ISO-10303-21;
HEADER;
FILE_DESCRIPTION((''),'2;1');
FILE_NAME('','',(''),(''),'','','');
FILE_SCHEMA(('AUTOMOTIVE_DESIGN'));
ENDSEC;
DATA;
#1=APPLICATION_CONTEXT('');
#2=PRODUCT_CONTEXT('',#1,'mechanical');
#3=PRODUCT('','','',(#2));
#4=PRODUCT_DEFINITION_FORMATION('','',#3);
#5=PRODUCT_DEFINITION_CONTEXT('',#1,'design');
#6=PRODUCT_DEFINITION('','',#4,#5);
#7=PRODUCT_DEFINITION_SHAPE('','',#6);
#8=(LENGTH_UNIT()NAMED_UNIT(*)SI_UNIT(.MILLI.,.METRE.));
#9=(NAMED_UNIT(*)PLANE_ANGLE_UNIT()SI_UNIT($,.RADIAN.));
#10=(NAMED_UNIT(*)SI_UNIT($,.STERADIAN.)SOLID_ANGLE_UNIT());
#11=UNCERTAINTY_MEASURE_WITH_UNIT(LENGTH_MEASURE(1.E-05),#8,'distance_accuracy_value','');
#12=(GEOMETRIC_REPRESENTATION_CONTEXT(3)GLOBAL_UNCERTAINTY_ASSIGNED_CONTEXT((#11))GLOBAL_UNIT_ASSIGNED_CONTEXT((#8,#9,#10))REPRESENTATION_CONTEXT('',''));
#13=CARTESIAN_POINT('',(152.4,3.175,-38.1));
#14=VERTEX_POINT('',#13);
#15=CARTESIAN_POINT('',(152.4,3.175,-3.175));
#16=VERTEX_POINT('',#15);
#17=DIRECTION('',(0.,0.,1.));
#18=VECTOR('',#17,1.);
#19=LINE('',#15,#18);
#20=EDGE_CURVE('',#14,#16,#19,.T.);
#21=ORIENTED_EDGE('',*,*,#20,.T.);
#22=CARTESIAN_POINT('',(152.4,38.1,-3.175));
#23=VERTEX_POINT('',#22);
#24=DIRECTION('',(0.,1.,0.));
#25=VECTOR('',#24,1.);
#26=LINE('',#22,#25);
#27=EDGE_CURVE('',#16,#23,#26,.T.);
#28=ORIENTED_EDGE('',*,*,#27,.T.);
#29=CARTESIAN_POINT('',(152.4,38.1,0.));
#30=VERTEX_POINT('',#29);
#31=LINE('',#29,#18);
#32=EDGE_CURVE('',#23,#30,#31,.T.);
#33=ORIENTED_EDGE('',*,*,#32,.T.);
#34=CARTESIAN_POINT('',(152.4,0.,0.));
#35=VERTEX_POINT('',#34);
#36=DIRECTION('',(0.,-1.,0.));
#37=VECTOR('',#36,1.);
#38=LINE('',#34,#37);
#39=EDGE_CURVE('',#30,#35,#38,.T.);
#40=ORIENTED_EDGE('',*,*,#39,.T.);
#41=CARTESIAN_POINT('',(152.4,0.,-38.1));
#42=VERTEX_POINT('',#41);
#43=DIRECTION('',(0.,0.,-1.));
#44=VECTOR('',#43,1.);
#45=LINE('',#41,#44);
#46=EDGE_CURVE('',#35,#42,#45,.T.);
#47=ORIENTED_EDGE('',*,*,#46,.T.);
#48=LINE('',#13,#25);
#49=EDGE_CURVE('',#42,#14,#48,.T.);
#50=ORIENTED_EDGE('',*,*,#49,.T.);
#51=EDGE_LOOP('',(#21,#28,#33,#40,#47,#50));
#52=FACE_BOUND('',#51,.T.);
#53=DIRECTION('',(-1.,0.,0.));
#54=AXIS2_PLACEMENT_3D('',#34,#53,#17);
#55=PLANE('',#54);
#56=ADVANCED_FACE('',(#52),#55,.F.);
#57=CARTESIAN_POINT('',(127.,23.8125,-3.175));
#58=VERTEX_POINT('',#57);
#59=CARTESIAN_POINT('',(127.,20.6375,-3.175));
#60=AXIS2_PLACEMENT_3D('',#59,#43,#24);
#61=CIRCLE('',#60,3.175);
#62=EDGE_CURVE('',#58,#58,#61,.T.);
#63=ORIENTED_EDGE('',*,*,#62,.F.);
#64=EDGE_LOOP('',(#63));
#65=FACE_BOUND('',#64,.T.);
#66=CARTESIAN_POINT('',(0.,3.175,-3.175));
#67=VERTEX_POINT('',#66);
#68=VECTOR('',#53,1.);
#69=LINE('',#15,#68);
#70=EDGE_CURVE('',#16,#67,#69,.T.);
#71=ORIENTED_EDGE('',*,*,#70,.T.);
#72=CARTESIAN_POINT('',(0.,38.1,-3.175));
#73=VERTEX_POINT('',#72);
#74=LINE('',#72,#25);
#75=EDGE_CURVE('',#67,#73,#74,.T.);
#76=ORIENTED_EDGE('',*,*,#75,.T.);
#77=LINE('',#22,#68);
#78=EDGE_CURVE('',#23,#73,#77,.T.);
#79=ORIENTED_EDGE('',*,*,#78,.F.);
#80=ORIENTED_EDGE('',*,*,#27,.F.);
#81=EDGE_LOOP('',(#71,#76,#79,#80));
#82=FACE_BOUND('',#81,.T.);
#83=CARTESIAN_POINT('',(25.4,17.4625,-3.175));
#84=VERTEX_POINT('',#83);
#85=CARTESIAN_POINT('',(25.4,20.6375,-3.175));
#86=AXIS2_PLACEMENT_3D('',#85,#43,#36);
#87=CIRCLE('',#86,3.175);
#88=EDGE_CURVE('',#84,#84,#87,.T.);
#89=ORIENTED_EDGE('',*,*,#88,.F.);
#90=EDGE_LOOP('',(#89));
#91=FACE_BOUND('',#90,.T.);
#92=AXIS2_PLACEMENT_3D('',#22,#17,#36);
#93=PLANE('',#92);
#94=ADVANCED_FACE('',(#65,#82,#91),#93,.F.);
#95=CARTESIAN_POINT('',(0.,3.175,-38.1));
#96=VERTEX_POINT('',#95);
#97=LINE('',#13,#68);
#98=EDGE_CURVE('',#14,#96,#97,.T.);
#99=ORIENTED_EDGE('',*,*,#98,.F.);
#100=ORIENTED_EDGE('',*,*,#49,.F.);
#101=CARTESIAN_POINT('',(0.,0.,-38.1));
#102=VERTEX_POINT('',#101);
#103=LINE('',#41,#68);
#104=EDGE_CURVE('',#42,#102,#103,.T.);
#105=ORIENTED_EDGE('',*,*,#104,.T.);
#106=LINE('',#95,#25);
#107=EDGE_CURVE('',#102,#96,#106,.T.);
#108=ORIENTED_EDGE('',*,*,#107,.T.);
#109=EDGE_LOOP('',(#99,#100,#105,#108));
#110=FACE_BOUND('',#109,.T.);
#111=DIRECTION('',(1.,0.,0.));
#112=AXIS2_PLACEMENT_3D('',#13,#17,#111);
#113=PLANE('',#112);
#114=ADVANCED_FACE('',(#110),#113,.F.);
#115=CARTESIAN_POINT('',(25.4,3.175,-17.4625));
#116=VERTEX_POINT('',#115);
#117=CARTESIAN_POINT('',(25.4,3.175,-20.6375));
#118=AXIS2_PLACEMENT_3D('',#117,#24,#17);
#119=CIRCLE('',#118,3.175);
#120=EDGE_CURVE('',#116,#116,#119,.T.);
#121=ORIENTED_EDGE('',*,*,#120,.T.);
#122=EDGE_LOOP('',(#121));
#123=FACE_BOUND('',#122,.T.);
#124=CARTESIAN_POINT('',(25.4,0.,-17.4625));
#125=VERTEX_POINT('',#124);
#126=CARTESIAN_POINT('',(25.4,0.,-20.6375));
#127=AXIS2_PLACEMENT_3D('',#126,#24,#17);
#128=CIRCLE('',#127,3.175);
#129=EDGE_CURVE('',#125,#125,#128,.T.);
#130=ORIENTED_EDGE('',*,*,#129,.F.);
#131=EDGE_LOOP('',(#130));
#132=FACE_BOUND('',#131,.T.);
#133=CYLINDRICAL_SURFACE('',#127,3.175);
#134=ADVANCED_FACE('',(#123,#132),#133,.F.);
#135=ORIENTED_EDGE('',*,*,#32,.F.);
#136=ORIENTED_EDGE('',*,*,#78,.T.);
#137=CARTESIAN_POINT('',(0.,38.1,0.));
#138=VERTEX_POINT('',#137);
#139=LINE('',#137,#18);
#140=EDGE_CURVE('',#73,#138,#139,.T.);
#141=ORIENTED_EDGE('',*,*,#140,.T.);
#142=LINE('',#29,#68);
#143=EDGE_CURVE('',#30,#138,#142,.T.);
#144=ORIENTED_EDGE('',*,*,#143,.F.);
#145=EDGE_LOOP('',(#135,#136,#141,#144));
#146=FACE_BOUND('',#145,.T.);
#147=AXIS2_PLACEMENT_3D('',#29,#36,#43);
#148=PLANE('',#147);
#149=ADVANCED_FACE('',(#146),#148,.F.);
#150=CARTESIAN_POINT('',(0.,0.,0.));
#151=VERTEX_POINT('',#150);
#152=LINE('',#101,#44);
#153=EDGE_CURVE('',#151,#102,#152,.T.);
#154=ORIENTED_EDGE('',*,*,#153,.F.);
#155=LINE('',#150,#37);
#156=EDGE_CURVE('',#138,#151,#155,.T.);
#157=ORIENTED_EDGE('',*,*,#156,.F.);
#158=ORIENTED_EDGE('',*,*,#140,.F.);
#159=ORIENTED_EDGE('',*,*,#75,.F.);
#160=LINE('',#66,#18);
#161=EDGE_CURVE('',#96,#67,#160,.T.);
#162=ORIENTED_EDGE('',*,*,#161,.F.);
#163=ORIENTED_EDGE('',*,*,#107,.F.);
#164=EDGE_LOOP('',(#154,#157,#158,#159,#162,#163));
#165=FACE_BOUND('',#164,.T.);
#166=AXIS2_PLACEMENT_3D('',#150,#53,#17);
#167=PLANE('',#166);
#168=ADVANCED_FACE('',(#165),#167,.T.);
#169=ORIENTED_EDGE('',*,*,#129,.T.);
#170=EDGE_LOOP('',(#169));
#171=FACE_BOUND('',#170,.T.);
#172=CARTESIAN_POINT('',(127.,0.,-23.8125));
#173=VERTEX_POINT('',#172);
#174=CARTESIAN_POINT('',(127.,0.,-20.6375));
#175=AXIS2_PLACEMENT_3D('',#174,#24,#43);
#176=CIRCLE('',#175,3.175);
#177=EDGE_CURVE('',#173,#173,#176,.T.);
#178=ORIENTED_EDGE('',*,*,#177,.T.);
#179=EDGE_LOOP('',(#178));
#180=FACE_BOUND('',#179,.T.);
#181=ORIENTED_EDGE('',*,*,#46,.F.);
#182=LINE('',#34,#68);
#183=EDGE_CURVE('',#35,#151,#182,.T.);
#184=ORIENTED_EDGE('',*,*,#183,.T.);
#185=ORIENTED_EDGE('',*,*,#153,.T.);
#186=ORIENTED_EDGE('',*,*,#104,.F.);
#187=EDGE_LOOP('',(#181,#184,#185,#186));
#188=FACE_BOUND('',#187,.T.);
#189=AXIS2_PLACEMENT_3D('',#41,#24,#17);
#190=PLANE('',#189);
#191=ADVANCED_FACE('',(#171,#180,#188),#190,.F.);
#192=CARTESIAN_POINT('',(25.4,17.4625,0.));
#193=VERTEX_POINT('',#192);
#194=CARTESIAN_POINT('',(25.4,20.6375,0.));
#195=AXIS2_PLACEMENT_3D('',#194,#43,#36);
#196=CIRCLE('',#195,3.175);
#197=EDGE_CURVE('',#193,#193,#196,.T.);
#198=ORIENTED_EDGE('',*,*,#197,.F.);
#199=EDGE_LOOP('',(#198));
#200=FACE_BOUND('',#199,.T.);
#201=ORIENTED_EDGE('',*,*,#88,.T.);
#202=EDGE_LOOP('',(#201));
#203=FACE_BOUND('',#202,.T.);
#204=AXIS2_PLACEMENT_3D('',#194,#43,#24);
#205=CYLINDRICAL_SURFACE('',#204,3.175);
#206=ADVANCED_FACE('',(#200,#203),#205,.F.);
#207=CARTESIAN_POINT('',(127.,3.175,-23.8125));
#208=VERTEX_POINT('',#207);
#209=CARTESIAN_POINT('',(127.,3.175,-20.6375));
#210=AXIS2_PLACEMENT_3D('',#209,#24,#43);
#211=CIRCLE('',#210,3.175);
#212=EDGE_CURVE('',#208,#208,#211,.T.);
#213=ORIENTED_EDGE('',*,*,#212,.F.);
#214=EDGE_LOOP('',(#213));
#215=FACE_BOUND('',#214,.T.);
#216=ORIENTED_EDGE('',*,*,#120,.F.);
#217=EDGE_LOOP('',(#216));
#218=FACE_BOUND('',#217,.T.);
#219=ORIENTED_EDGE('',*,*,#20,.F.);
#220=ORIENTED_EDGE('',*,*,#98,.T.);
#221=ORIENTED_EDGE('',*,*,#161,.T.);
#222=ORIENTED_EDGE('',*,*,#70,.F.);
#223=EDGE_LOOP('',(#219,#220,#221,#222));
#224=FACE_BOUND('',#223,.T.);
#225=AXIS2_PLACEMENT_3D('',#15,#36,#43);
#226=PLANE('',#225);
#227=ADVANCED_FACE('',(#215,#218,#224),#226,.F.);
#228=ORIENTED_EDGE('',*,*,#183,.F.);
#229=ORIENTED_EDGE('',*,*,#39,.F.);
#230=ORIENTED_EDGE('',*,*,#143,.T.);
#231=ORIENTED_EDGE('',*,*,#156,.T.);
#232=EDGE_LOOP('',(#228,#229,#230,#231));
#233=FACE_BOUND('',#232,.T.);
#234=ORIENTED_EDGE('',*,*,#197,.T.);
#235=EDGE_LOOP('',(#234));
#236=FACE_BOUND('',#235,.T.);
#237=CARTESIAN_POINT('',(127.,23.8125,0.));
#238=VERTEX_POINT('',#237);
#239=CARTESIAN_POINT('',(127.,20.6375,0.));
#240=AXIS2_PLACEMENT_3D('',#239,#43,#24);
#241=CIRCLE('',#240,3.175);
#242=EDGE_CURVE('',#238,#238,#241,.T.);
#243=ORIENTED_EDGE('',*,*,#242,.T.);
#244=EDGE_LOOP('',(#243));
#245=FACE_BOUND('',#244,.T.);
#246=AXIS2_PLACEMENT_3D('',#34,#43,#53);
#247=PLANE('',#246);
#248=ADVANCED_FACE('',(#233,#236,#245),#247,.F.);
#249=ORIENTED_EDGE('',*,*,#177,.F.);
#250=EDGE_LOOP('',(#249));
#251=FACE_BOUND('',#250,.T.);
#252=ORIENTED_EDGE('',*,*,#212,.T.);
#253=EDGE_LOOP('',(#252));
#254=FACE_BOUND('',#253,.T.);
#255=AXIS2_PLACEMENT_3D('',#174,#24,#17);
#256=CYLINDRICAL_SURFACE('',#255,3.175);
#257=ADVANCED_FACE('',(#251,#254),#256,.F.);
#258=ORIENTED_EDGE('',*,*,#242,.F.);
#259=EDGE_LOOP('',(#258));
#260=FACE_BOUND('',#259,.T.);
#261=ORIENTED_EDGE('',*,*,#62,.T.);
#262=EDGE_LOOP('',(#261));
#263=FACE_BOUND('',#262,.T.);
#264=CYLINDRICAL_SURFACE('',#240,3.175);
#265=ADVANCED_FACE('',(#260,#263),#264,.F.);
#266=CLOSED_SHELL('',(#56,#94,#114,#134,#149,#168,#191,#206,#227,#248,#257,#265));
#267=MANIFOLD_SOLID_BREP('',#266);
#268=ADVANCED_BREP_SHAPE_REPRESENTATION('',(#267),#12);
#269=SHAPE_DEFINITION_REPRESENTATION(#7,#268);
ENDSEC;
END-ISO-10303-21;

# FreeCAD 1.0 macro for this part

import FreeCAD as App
import Part
import Sketcher

V = App.Vector
Q = App.Units.Quantity


def add_polygon(sketch, points):
    """Adds a closed chain of lines whose ends are joined by coincident constraints."""
    first, n = sketch.GeometryCount, len(points)
    for a, b in zip(points, points[1:] + points[:1]):
        sketch.addGeometry(Part.LineSegment(App.Vector(*a, 0), App.Vector(*b, 0)), False)
    for i in range(n):
        sketch.addConstraint(Sketcher.Constraint("Coincident", first + i, 2, first + (i + 1) % n, 1))

doc = App.newDocument("Part")
params = doc.addObject("Spreadsheet::Sheet", "Params")
for row, (alias, value) in enumerate([
    ("sketch1_width", "1.5 in"),
    ("sketch1_width2", "0.125 in"),
    ("pad1_length", "6 in"),
    ("sketch2_diameter", "0.25 in"),
    ("sketch3_diameter", "0.25 in"),
], start=1):
    params.set(f"A{row}", alias)
    params.set(f"B{row}", "=" + value)
    params.setAlias(f"B{row}", alias)

body = doc.addObject("PartDesign::Body", "Body")

sketch1 = doc.addObject("Sketcher::SketchObject", "Sketch")
body.addObject(sketch1)
sketch1.AttachmentSupport = (doc.YZ_Plane, [""])
sketch1.MapMode = "FlatFace"
add_polygon(sketch1, [(38.1, 0), (0, 0), (0, -38.1), (3.2, -38.1), (3.2, -3.2), (38.1, -3.2)])
sketch1.addConstraint(Sketcher.Constraint("Horizontal", 0))
sketch1.addConstraint(Sketcher.Constraint("Vertical", 1))
sketch1.addConstraint(Sketcher.Constraint("Horizontal", 2))
sketch1.addConstraint(Sketcher.Constraint("Vertical", 3))
sketch1.addConstraint(Sketcher.Constraint("Horizontal", 4))
sketch1.addConstraint(Sketcher.Constraint("Vertical", 5))
sketch1.addConstraint(Sketcher.Constraint("Coincident", 0, 2, -1, 1))
sketch1.addConstraint(Sketcher.Constraint("Equal", 0, 1))
sketch1.addConstraint(Sketcher.Constraint("Equal", 4, 3))
sketch1.addConstraint(Sketcher.Constraint("DistanceX", 0, 2, 0, 1, Q("1.5 in")))
sketch1.addConstraint(Sketcher.Constraint("DistanceX", 2, 1, 2, 2, Q("0.125 in")))
sketch1.setExpression("Constraints[15]", "Params.sketch1_width")
sketch1.setExpression("Constraints[16]", "Params.sketch1_width2")
pad1 = doc.addObject("PartDesign::Pad", "Pad")
body.addObject(pad1)
pad1.Profile = sketch1
pad1.setExpression("Length", "Params.pad1_length")

sketch2 = doc.addObject("Sketcher::SketchObject", "Sketch001")
body.addObject(sketch2)
sketch2.AttachmentSupport = (doc.XY_Plane, [""])
sketch2.MapMode = "FlatFace"
sketch2.AttachmentOffset = App.Placement(V(0, 0, -0.125 * 25.4), App.Rotation())
sketch2.addGeometry(Part.Circle(V(127, 20.6, 0), V(0, 0, 1), 3.2), False)
sketch2.addGeometry(Part.Circle(V(25.4, 20.6, 0), V(0, 0, 1), 3.2), False)
sketch2.addConstraint(Sketcher.Constraint("Equal", 0, 1))
sketch2.addConstraint(Sketcher.Constraint("Horizontal", 0, 3, 1, 3))
sketch2.addConstraint(Sketcher.Constraint("Diameter", 0, Q("0.25 in")))
sketch2.addConstraint(Sketcher.Constraint("DistanceX", -1, 1, 0, 3, Q("5 in")))
sketch2.addConstraint(Sketcher.Constraint("DistanceX", -1, 1, 1, 3, Q("1 in")))
sketch2.addConstraint(Sketcher.Constraint("DistanceY", -1, 1, 0, 3, Q("0.8125 in")))
sketch2.setExpression("Constraints[2]", "Params.sketch2_diameter")
pocket1 = doc.addObject("PartDesign::Pocket", "Pocket")
body.addObject(pocket1)
pocket1.Profile = sketch2
pocket1.Type = "ThroughAll"
pocket1.Reversed = True

sketch3 = doc.addObject("Sketcher::SketchObject", "Sketch002")
body.addObject(sketch3)
sketch3.AttachmentSupport = (doc.XZ_Plane, [""])
sketch3.MapMode = "FlatFace"
sketch3.AttachmentOffset = App.Placement(V(0, 0, -0.125 * 25.4), App.Rotation())
sketch3.addGeometry(Part.Circle(V(25.4, -20.6, 0), V(0, 0, 1), 3.2), False)
sketch3.addGeometry(Part.Circle(V(127, -20.6, 0), V(0, 0, 1), 3.2), False)
sketch3.addConstraint(Sketcher.Constraint("Equal", 0, 1))
sketch3.addConstraint(Sketcher.Constraint("Horizontal", 0, 3, 1, 3))
sketch3.addConstraint(Sketcher.Constraint("Diameter", 0, Q("0.25 in")))
sketch3.addConstraint(Sketcher.Constraint("DistanceX", -1, 1, 0, 3, Q("1 in")))
sketch3.addConstraint(Sketcher.Constraint("DistanceX", -1, 1, 1, 3, Q("5 in")))
sketch3.addConstraint(Sketcher.Constraint("DistanceY", 0, 3, -1, 1, Q("0.8125 in")))
sketch3.setExpression("Constraints[2]", "Params.sketch3_diameter")
pocket2 = doc.addObject("PartDesign::Pocket", "Pocket001")
body.addObject(pocket2)
pocket2.Profile = sketch3
pocket2.Type = "ThroughAll"
pocket2.Reversed = True

doc.recompute()
